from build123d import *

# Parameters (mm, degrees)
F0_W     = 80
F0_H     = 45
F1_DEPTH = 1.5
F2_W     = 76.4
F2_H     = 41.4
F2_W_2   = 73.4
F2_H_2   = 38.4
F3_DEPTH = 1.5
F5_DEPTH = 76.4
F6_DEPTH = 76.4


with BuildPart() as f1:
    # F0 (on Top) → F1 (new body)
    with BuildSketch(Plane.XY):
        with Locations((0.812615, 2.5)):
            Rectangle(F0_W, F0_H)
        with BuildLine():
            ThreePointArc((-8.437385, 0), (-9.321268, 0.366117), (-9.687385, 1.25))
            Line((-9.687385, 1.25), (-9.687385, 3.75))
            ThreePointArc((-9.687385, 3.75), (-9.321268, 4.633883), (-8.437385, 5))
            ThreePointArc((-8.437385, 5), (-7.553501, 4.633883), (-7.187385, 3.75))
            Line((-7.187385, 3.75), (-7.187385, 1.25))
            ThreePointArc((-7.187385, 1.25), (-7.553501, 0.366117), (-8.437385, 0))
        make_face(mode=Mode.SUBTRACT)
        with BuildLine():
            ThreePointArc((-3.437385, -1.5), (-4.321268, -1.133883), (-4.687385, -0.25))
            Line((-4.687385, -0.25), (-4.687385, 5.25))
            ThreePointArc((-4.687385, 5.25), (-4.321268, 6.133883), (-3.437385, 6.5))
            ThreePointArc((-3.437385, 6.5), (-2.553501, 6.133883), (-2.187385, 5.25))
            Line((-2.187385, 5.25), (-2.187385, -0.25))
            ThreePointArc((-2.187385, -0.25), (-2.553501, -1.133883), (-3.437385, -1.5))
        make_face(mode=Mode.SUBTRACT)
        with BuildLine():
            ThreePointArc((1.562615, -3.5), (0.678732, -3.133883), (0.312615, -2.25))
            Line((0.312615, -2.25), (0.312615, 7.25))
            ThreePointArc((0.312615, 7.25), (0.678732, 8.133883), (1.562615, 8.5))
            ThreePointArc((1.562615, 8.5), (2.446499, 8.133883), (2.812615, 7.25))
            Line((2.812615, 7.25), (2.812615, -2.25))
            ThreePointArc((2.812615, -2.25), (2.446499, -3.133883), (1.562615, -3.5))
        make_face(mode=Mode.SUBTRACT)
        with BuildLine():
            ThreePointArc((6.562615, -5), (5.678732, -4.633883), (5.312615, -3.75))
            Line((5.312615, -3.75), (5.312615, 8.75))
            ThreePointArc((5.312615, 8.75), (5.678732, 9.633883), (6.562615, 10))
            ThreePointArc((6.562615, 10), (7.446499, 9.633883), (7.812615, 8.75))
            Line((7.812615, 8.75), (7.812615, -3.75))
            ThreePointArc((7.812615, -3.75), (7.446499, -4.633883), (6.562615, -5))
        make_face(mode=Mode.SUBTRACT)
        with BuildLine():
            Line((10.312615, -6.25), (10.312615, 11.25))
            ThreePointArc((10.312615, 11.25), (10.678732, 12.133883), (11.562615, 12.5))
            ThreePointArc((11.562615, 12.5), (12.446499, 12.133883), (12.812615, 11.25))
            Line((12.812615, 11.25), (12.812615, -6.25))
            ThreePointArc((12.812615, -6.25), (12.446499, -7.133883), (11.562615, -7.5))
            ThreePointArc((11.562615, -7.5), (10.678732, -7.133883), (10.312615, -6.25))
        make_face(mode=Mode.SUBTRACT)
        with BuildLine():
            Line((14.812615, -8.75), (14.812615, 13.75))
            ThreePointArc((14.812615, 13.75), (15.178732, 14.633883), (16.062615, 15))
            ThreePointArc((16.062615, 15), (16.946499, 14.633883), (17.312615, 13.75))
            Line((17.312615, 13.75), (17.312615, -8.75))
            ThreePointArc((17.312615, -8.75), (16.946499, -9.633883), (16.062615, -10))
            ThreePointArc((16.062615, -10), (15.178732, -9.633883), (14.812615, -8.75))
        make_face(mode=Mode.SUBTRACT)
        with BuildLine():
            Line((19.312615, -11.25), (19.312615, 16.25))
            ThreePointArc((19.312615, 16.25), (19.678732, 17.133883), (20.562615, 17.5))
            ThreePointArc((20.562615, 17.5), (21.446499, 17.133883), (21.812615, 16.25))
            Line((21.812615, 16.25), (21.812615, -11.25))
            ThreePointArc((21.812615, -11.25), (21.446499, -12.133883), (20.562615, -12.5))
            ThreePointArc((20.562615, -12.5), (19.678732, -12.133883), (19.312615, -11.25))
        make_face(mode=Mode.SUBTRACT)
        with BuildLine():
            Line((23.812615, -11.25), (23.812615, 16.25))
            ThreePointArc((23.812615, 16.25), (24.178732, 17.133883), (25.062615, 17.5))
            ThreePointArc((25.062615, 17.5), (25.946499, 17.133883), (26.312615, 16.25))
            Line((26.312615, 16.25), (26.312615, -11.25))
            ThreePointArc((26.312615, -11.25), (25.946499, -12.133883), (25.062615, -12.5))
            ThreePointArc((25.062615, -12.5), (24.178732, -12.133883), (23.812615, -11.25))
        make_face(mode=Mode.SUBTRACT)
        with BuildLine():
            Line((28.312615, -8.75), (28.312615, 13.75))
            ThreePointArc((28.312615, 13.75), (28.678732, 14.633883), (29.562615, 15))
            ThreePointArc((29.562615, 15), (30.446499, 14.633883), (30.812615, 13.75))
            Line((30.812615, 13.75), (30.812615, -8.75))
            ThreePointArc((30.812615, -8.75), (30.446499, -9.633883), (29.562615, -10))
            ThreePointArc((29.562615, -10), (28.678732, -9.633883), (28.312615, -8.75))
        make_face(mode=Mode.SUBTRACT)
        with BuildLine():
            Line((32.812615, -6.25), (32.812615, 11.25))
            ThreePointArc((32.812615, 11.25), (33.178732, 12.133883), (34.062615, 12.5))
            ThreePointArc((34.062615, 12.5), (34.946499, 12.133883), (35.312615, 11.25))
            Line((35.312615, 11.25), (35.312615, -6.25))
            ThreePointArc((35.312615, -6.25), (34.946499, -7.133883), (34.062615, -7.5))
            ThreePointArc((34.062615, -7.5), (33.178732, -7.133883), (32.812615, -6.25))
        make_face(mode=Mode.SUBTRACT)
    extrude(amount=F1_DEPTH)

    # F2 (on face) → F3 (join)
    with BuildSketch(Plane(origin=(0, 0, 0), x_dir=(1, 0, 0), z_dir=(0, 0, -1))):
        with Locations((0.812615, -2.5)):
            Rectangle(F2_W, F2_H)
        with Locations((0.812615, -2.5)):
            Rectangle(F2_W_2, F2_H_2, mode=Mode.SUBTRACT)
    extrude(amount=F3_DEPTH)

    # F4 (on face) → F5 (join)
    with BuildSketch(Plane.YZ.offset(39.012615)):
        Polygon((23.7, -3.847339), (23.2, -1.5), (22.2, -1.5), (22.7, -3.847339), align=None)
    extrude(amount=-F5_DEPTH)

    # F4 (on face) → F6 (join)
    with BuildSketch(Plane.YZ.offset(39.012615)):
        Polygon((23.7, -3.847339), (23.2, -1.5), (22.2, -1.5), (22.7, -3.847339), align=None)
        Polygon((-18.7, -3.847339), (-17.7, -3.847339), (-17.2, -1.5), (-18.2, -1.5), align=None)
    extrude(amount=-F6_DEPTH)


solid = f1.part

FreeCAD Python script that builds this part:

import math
import FreeCAD as App
import Part
import Sketcher
from FreeCAD import Vector
Q = App.Units.Quantity

doc = App.newDocument("Part")
params = doc.addObject("Spreadsheet::Sheet", "Params")
for row, (alias, value) in enumerate([
    ("sketch1_width", "80 mm"),
    ("sketch1_height", "45 mm"),
    ("sketch1_radius", "1.250002 mm"),
    ("sketch1_height2", "17.5 mm"),
    ("sketch1_height3", "2.5 mm"),
    ("pad1_length", "1.5 mm"),
    ("sketch2_width", "76.4 mm"),
    ("sketch2_width2", "73.4 mm"),
    ("sketch2_height", "41.4 mm"),
    ("sketch2_height2", "38.4 mm"),
    ("pad2_length", "1.5 mm"),
    ("sketch3_width", "1 mm"),
    ("sketch3_length", "2.4 mm"),
    ("pad3_length", "76.4 mm"),
    ("sketch4_width", "1 mm"),
    ("sketch4_length", "2.4 mm"),
    ("pad4_length", "76.4 mm"),
], start=1):
    params.set(f"A{row}", alias)
    params.set(f"B{row}", "=" + value)
    params.setAlias(f"B{row}", alias)

body = doc.addObject("PartDesign::Body", "Body")

sketch1 = doc.addObject("Sketcher::SketchObject", "Sketch")
body.addObject(sketch1)
sketch1.AttachmentSupport = (doc.XY_Plane, [""])
sketch1.MapMode = "FlatFace"
sketch1.addGeometry([
    Part.LineSegment(Vector(-39.2, 25, 0), Vector(-39.2, -20, 0)),
    Part.LineSegment(Vector(-39.2, -20, 0), Vector(40.8, -20, 0)),
    Part.LineSegment(Vector(40.8, -20, 0), Vector(40.8, 25, 0)),
    Part.LineSegment(Vector(40.8, 25, 0), Vector(-39.2, 25, 0)),
    Part.ArcOfCircle(Part.Circle(Vector(34.1, -6.2, 0), Vector(0, 0, 1), 1.3), math.radians(-180), math.radians(-90)),
    Part.LineSegment(Vector(32.8, -6.2, 0), Vector(32.8, 11.2, 0)),
    Part.ArcOfCircle(Part.Circle(Vector(34.1, 11.2, 0), Vector(0, 0, 1), 1.3), math.radians(90), math.radians(180)),
    Part.ArcOfCircle(Part.Circle(Vector(34.1, 11.3, 0), Vector(0, 0, 1), 1.2), math.radians(0), math.radians(90)),
    Part.LineSegment(Vector(35.3, 11.2, 0), Vector(35.3, -6.2, 0)),
    Part.ArcOfCircle(Part.Circle(Vector(34.1, -6.3, 0), Vector(0, 0, 1), 1.2), math.radians(-90), math.radians(0)),
    Part.ArcOfCircle(Part.Circle(Vector(-8.4, 1.2, 0), Vector(0, 0, 1), 1.2), math.radians(-90), math.radians(0)),
    Part.ArcOfCircle(Part.Circle(Vector(-8.4, 1.3, 0), Vector(0, 0, 1), 1.3), math.radians(-180), math.radians(-90)),
    Part.LineSegment(Vector(-9.7, 1.2, 0), Vector(-9.7, 3.8, 0)),
    Part.ArcOfCircle(Part.Circle(Vector(-8.4, 3.7, 0), Vector(0, 0, 1), 1.3), math.radians(90), math.radians(180)),
    Part.ArcOfCircle(Part.Circle(Vector(-8.4, 3.8, 0), Vector(0, 0, 1), 1.2), math.radians(0), math.radians(90)),
    Part.LineSegment(Vector(-7.2, 3.8, 0), Vector(-7.2, 1.2, 0)),
    Part.ArcOfCircle(Part.Circle(Vector(-3.4, -0.3, 0), Vector(0, 0, 1), 1.2), math.radians(-90), math.radians(0)),
    Part.ArcOfCircle(Part.Circle(Vector(-3.4, -0.2, 0), Vector(0, 0, 1), 1.3), math.radians(-180), math.radians(-90)),
    Part.LineSegment(Vector(-4.7, -0.2, 0), Vector(-4.7, 5.2, 0)),
    Part.ArcOfCircle(Part.Circle(Vector(-3.4, 5.2, 0), Vector(0, 0, 1), 1.3), math.radians(90), math.radians(180)),
    Part.ArcOfCircle(Part.Circle(Vector(-3.4, 5.3, 0), Vector(0, 0, 1), 1.2), math.radians(0), math.radians(90)),
    Part.LineSegment(Vector(-2.2, 5.2, 0), Vector(-2.2, -0.2, 0)),
    Part.ArcOfCircle(Part.Circle(Vector(1.6, -2.3, 0), Vector(0, 0, 1), 1.2), math.radians(-90), math.radians(0)),
    Part.ArcOfCircle(Part.Circle(Vector(1.6, -2.2, 0), Vector(0, 0, 1), 1.3), math.radians(-180), math.radians(-90)),
    Part.LineSegment(Vector(0.3, -2.2, 0), Vector(0.3, 7.2, 0)),
    Part.ArcOfCircle(Part.Circle(Vector(1.6, 7.2, 0), Vector(0, 0, 1), 1.3), math.radians(90), math.radians(180)),
    Part.ArcOfCircle(Part.Circle(Vector(1.6, 7.3, 0), Vector(0, 0, 1), 1.2), math.radians(0), math.radians(90)),
    Part.LineSegment(Vector(2.8, 7.2, 0), Vector(2.8, -2.2, 0)),
    Part.ArcOfCircle(Part.Circle(Vector(6.6, -3.8, 0), Vector(0, 0, 1), 1.2), math.radians(-90), math.radians(0)),
    Part.ArcOfCircle(Part.Circle(Vector(6.6, -3.7, 0), Vector(0, 0, 1), 1.3), math.radians(-180), math.radians(-90)),
    Part.LineSegment(Vector(5.3, -3.8, 0), Vector(5.3, 8.8, 0)),
    Part.ArcOfCircle(Part.Circle(Vector(6.6, 8.7, 0), Vector(0, 0, 1), 1.3), math.radians(90), math.radians(180)),
    Part.ArcOfCircle(Part.Circle(Vector(6.6, 8.8, 0), Vector(0, 0, 1), 1.2), math.radians(0), math.radians(90)),
    Part.LineSegment(Vector(7.8, 8.8, 0), Vector(7.8, -3.8, 0)),
    Part.ArcOfCircle(Part.Circle(Vector(11.6, -6.2, 0), Vector(0, 0, 1), 1.3), math.radians(-180), math.radians(-90)),
    Part.LineSegment(Vector(10.3, -6.2, 0), Vector(10.3, 11.2, 0)),
    Part.ArcOfCircle(Part.Circle(Vector(11.6, 11.2, 0), Vector(0, 0, 1), 1.3), math.radians(90), math.radians(180)),
    Part.ArcOfCircle(Part.Circle(Vector(11.6, 11.3, 0), Vector(0, 0, 1), 1.2), math.radians(0), math.radians(90)),
    Part.LineSegment(Vector(12.8, 11.2, 0), Vector(12.8, -6.2, 0)),
    Part.ArcOfCircle(Part.Circle(Vector(11.6, -6.3, 0), Vector(0, 0, 1), 1.2), math.radians(-90), math.radians(0)),
    Part.ArcOfCircle(Part.Circle(Vector(16.1, -8.7, 0), Vector(0, 0, 1), 1.3), math.radians(-180), math.radians(-90)),
    Part.LineSegment(Vector(14.8, -8.8, 0), Vector(14.8, 13.8, 0)),
    Part.ArcOfCircle(Part.Circle(Vector(16.1, 13.7, 0), Vector(0, 0, 1), 1.3), math.radians(90), math.radians(180)),
    Part.ArcOfCircle(Part.Circle(Vector(16.1, 13.8, 0), Vector(0, 0, 1), 1.2), math.radians(0), math.radians(90)),
    Part.LineSegment(Vector(17.3, 13.8, 0), Vector(17.3, -8.8, 0)),
    Part.ArcOfCircle(Part.Circle(Vector(16.1, -8.8, 0), Vector(0, 0, 1), 1.2), math.radians(-90), math.radians(0)),
    Part.ArcOfCircle(Part.Circle(Vector(20.6, -11.2, 0), Vector(0, 0, 1), 1.3), math.radians(-180), math.radians(-90)),
    Part.LineSegment(Vector(19.3, -11.2, 0), Vector(19.3, 16.2, 0)),
    Part.ArcOfCircle(Part.Circle(Vector(20.6, 16.2, 0), Vector(0, 0, 1), 1.3), math.radians(90), math.radians(180)),
    Part.ArcOfCircle(Part.Circle(Vector(20.6, 16.3, 0), Vector(0, 0, 1), 1.2), math.radians(0), math.radians(90)),
    Part.LineSegment(Vector(21.8, 16.2, 0), Vector(21.8, -11.2, 0)),
    Part.ArcOfCircle(Part.Circle(Vector(20.6, -11.3, 0), Vector(0, 0, 1), 1.2), math.radians(-90), math.radians(0)),
    Part.ArcOfCircle(Part.Circle(Vector(25.1, -11.2, 0), Vector(0, 0, 1), 1.3), math.radians(-180), math.radians(-90)),
    Part.LineSegment(Vector(23.8, -11.2, 0), Vector(23.8, 16.2, 0)),
    Part.ArcOfCircle(Part.Circle(Vector(25.1, 16.2, 0), Vector(0, 0, 1), 1.3), math.radians(90), math.radians(180)),
    Part.ArcOfCircle(Part.Circle(Vector(25.1, 16.3, 0), Vector(0, 0, 1), 1.2), math.radians(0), math.radians(90)),
    Part.LineSegment(Vector(26.3, 16.2, 0), Vector(26.3, -11.2, 0)),
    Part.ArcOfCircle(Part.Circle(Vector(25.1, -11.3, 0), Vector(0, 0, 1), 1.2), math.radians(-90), math.radians(0)),
    Part.ArcOfCircle(Part.Circle(Vector(29.6, -8.7, 0), Vector(0, 0, 1), 1.3), math.radians(-180), math.radians(-90)),
    Part.LineSegment(Vector(28.3, -8.8, 0), Vector(28.3, 13.8, 0)),
    Part.ArcOfCircle(Part.Circle(Vector(29.6, 13.7, 0), Vector(0, 0, 1), 1.3), math.radians(90), math.radians(180)),
    Part.ArcOfCircle(Part.Circle(Vector(29.6, 13.8, 0), Vector(0, 0, 1), 1.2), math.radians(0), math.radians(90)),
    Part.LineSegment(Vector(30.8, 13.8, 0), Vector(30.8, -8.8, 0)),
    Part.ArcOfCircle(Part.Circle(Vector(29.6, -8.8, 0), Vector(0, 0, 1), 1.2), math.radians(-90), math.radians(0)),
], False)
sketch1.addConstraint([
    Sketcher.Constraint("Coincident", 0, 2, 1, 1),
    Sketcher.Constraint("Coincident", 1, 2, 2, 1),
    Sketcher.Constraint("Coincident", 2, 2, 3, 1),
    Sketcher.Constraint("Coincident", 3, 2, 0, 1),
    Sketcher.Constraint("Tangent", 4, 1, 5, 1),
    Sketcher.Constraint("Tangent", 5, 2, 6, 2),
    Sketcher.Constraint("Tangent", 6, 1, 7, 2),
    Sketcher.Constraint("Tangent", 7, 1, 8, 1),
    Sketcher.Constraint("Tangent", 8, 2, 9, 2),
    Sketcher.Constraint("Tangent", 9, 1, 4, 2),
    Sketcher.Constraint("Tangent", 10, 1, 11, 2),
    Sketcher.Constraint("Tangent", 11, 1, 12, 1),
    Sketcher.Constraint("Tangent", 12, 2, 13, 2),
    Sketcher.Constraint("Tangent", 13, 1, 14, 2),
    Sketcher.Constraint("Tangent", 14, 1, 15, 1),
    Sketcher.Constraint("Tangent", 15, 2, 10, 2),
    Sketcher.Constraint("Tangent", 16, 1, 17, 2),
    Sketcher.Constraint("Tangent", 17, 1, 18, 1),
    Sketcher.Constraint("Tangent", 18, 2, 19, 2),
    Sketcher.Constraint("Tangent", 19, 1, 20, 2),
    Sketcher.Constraint("Tangent", 20, 1, 21, 1),
    Sketcher.Constraint("Tangent", 21, 2, 16, 2),
    Sketcher.Constraint("Tangent", 22, 1, 23, 2),
    Sketcher.Constraint("Tangent", 23, 1, 24, 1),
    Sketcher.Constraint("Tangent", 24, 2, 25, 2),
    Sketcher.Constraint("Tangent", 25, 1, 26, 2),
    Sketcher.Constraint("Tangent", 26, 1, 27, 1),
    Sketcher.Constraint("Tangent", 27, 2, 22, 2),
    Sketcher.Constraint("Tangent", 28, 1, 29, 2),
    Sketcher.Constraint("Tangent", 29, 1, 30, 1),
    Sketcher.Constraint("Tangent", 30, 2, 31, 2),
    Sketcher.Constraint("Tangent", 31, 1, 32, 2),
    Sketcher.Constraint("Tangent", 32, 1, 33, 1),
    Sketcher.Constraint("Tangent", 33, 2, 28, 2),
    Sketcher.Constraint("Tangent", 34, 1, 35, 1),
    Sketcher.Constraint("Tangent", 35, 2, 36, 2),
    Sketcher.Constraint("Tangent", 36, 1, 37, 2),
    Sketcher.Constraint("Tangent", 37, 1, 38, 1),
    Sketcher.Constraint("Tangent", 38, 2, 39, 2),
    Sketcher.Constraint("Tangent", 39, 1, 34, 2),
    Sketcher.Constraint("Tangent", 40, 1, 41, 1),
    Sketcher.Constraint("Tangent", 41, 2, 42, 2),
    Sketcher.Constraint("Tangent", 42, 1, 43, 2),
    Sketcher.Constraint("Tangent", 43, 1, 44, 1),
    Sketcher.Constraint("Tangent", 44, 2, 45, 2),
    Sketcher.Constraint("Tangent", 45, 1, 40, 2),
    Sketcher.Constraint("Tangent", 46, 1, 47, 1),
    Sketcher.Constraint("Tangent", 47, 2, 48, 2),
    Sketcher.Constraint("Tangent", 48, 1, 49, 2),
    Sketcher.Constraint("Tangent", 49, 1, 50, 1),
    Sketcher.Constraint("Tangent", 50, 2, 51, 2),
    Sketcher.Constraint("Tangent", 51, 1, 46, 2),
    Sketcher.Constraint("Tangent", 52, 1, 53, 1),
    Sketcher.Constraint("Tangent", 53, 2, 54, 2),
    Sketcher.Constraint("Tangent", 54, 1, 55, 2),
    Sketcher.Constraint("Tangent", 55, 1, 56, 1),
    Sketcher.Constraint("Tangent", 56, 2, 57, 2),
    Sketcher.Constraint("Tangent", 57, 1, 52, 2),
    Sketcher.Constraint("Tangent", 58, 1, 59, 1),
    Sketcher.Constraint("Tangent", 59, 2, 60, 2),
    Sketcher.Constraint("Tangent", 60, 1, 61, 2),
    Sketcher.Constraint("Tangent", 61, 1, 62, 1),
    Sketcher.Constraint("Tangent", 62, 2, 63, 2),
    Sketcher.Constraint("Tangent", 63, 1, 58, 2),
    Sketcher.Constraint("Vertical", 0),
    Sketcher.Constraint("Horizontal", 1),
    Sketcher.Constraint("Vertical", 2),
    Sketcher.Constraint("Horizontal", 3),
    Sketcher.Constraint("Vertical", 5),
    Sketcher.Constraint("Vertical", 8),
    Sketcher.Constraint("Vertical", 12),
    Sketcher.Constraint("Vertical", 15),
    Sketcher.Constraint("Vertical", 18),
    Sketcher.Constraint("Vertical", 21),
    Sketcher.Constraint("Vertical", 24),
    Sketcher.Constraint("Vertical", 27),
    Sketcher.Constraint("Vertical", 30),
    Sketcher.Constraint("Vertical", 33),
    Sketcher.Constraint("Vertical", 35),
    Sketcher.Constraint("Vertical", 38),
    Sketcher.Constraint("Vertical", 41),
    Sketcher.Constraint("Vertical", 44),
    Sketcher.Constraint("Vertical", 47),
    Sketcher.Constraint("Vertical", 50),
    Sketcher.Constraint("Vertical", 53),
    Sketcher.Constraint("Vertical", 56),
    Sketcher.Constraint("Vertical", 59),
    Sketcher.Constraint("Vertical", 62),
    Sketcher.Constraint("Equal", 4, 6),
    Sketcher.Constraint("Equal", 6, 7),
    Sketcher.Constraint("Equal", 9, 10),
    Sketcher.Constraint("Equal", 10, 11),
    Sketcher.Constraint("Equal", 11, 13),
    Sketcher.Constraint("Equal", 14, 16),
    Sketcher.Constraint("Equal", 16, 17),
    Sketcher.Constraint("Equal", 17, 19),
    Sketcher.Constraint("Equal", 20, 22),
    Sketcher.Constraint("Equal", 22, 23),
    Sketcher.Constraint("Equal", 23, 25),
    Sketcher.Constraint("Equal", 26, 28),
    Sketcher.Constraint("Equal", 28, 29),
    Sketcher.Constraint("Equal", 29, 31),
    Sketcher.Constraint("Equal", 32, 34),
    Sketcher.Constraint("Equal", 34, 36),
    Sketcher.Constraint("Equal", 36, 37),
    Sketcher.Constraint("Equal", 39, 40),
    Sketcher.Constraint("Equal", 40, 42),
    Sketcher.Constraint("Equal", 42, 43),
    Sketcher.Constraint("Equal", 45, 46),
    Sketcher.Constraint("Equal", 46, 48),
    Sketcher.Constraint("Equal", 48, 49),
    Sketcher.Constraint("Equal", 51, 52),
    Sketcher.Constraint("Equal", 52, 54),
    Sketcher.Constraint("Equal", 54, 55),
    Sketcher.Constraint("Equal", 57, 58),
    Sketcher.Constraint("Equal", 58, 60),
    Sketcher.Constraint("Equal", 60, 61),
    Sketcher.Constraint("PointOnObject", 10, 1, -1),
    Sketcher.Constraint("Horizontal", 9, 3, 34, 3),
    Sketcher.Constraint("Horizontal", 7, 3, 36, 3),
    Sketcher.Constraint("Horizontal", 51, 3, 52, 3),
    Sketcher.Constraint("Horizontal", 49, 3, 54, 3),
    Sketcher.Constraint("Horizontal", 45, 3, 58, 3),
    Sketcher.Constraint("Horizontal", 43, 3, 60, 3),
    Sketcher.Constraint("Vertical", 9, 3, 6, 1),
    Sketcher.Constraint("Vertical", 6, 1, 9, 1),
    Sketcher.Constraint("Vertical", 14, 3, 10, 1),
    Sketcher.Constraint("Vertical", 10, 1, 13, 1),
    Sketcher.Constraint("Vertical", 20, 3, 16, 1),
    Sketcher.Constraint("Vertical", 16, 1, 19, 1),
    Sketcher.Constraint("Vertical", 26, 3, 22, 1),
    Sketcher.Constraint("Vertical", 22, 1, 25, 1),
    Sketcher.Constraint("Vertical", 32, 3, 28, 1),
    Sketcher.Constraint("Vertical", 28, 1, 31, 1),
    Sketcher.Constraint("Vertical", 39, 3, 36, 1),
    Sketcher.Constraint("Vertical", 36, 1, 39, 1),
    Sketcher.Constraint("Vertical", 45, 3, 42, 1),
    Sketcher.Constraint("Vertical", 42, 1, 45, 1),
    Sketcher.Constraint("Vertical", 51, 3, 48, 1),
    Sketcher.Constraint("Vertical", 48, 1, 51, 1),
    Sketcher.Constraint("Vertical", 57, 3, 54, 1),
    Sketcher.Constraint("Vertical", 54, 1, 57, 1),
    Sketcher.Constraint("Vertical", 63, 3, 60, 1),
    Sketcher.Constraint("Vertical", 60, 1, 63, 1),
    Sketcher.Constraint("DistanceX", 1, 1, 1, 2, Q("80 mm")),
    Sketcher.Constraint("DistanceY", 0, 2, 0, 1, Q("45 mm")),
    Sketcher.Constraint("Radius", 4, Q("1.250002 mm")),
    Sketcher.Constraint("DistanceY", 5, 1, 5, 2, Q("17.5 mm")),
    Sketcher.Constraint("DistanceY", 12, 1, 12, 2, Q("2.5 mm")),
    Sketcher.Constraint("DistanceY", 18, 1, 18, 2, Q("5.5 mm")),
    Sketcher.Constraint("DistanceY", 24, 1, 24, 2, Q("9.5 mm")),
    Sketcher.Constraint("DistanceY", 30, 1, 30, 2, Q("12.5 mm")),
    Sketcher.Constraint("DistanceY", 41, 1, 41, 2, Q("22.5 mm")),
    Sketcher.Constraint("DistanceY", 47, 1, 47, 2, Q("27.5 mm")),
    Sketcher.Constraint("DistanceY", 0, 2, -1, 1, Q("20 mm")),
    Sketcher.Constraint("DistanceY", 28, 1, -1, 1, Q("5 mm")),
    Sketcher.Constraint("DistanceY", -1, 1, 42, 1, Q("15 mm")),
    Sketcher.Constraint("DistanceY", -1, 1, 6, 1, Q("12.5 mm")),
    Sketcher.Constraint("DistanceY", 16, 1, -1, 1, Q("1.5 mm")),
    Sketcher.Constraint("DistanceY", 22, 1, -1, 1, Q("3.5 mm")),
    Sketcher.Constraint("DistanceY", -1, 1, 48, 1, Q("17.5 mm")),
    Sketcher.Constraint("DistanceX", -1, 1, 4, 3, Q("34.062617 mm")),
    Sketcher.Constraint("DistanceX", 10, 3, -1, 1, Q("8.437385 mm")),
    Sketcher.Constraint("DistanceX", 16, 3, -1, 1, Q("3.437385 mm")),
    Sketcher.Constraint("DistanceX", -1, 1, 22, 3, Q("1.562615 mm")),
    Sketcher.Constraint("DistanceX", -1, 1, 28, 3, Q("6.562615 mm")),
    Sketcher.Constraint("DistanceX", -1, 1, 34, 3, Q("11.562617 mm")),
    Sketcher.Constraint("DistanceX", -1, 1, 40, 3, Q("16.062617 mm")),
    Sketcher.Constraint("DistanceX", -1, 1, 46, 3, Q("20.562617 mm")),
    Sketcher.Constraint("DistanceX", -1, 1, 52, 3, Q("25.062617 mm")),
    Sketcher.Constraint("DistanceX", -1, 1, 58, 3, Q("29.562617 mm")),
    Sketcher.Constraint("DistanceX", 0, 2, -1, 1, Q("39.187385 mm")),
])
sketch1.setExpression("Constraints[144]", "Params.sketch1_width")
sketch1.setExpression("Constraints[145]", "Params.sketch1_height")
sketch1.setExpression("Constraints[146]", "Params.sketch1_radius")
sketch1.setExpression("Constraints[147]", "Params.sketch1_height2")
sketch1.setExpression("Constraints[148]", "Params.sketch1_height3")
pad1 = doc.addObject("PartDesign::Pad", "Pad")
body.addObject(pad1)
pad1.Profile = sketch1
pad1.setExpression("Length", "Params.pad1_length")

sketch2 = doc.addObject("Sketcher::SketchObject", "Sketch001")
body.addObject(sketch2)
sketch2.AttachmentSupport = (doc.XY_Plane, [""])
sketch2.MapMode = "FlatFace"
sketch2.addGeometry([
    Part.LineSegment(Vector(-37, -18, 0), Vector(-37, 23, 0)),
    Part.LineSegment(Vector(-37, 23, 0), Vector(39, 23, 0)),
    Part.LineSegment(Vector(39, 23, 0), Vector(39, -18, 0)),
    Part.LineSegment(Vector(39, -18, 0), Vector(-37, -18, 0)),
    Part.LineSegment(Vector(38, 22, 0), Vector(-36, 22, 0)),
    Part.LineSegment(Vector(-36, 22, 0), Vector(-36, -17, 0)),
    Part.LineSegment(Vector(-36, -17, 0), Vector(38, -17, 0)),
    Part.LineSegment(Vector(38, -17, 0), Vector(38, 22, 0)),
], False)
sketch2.addConstraint([
    Sketcher.Constraint("Coincident", 0, 2, 1, 1),
    Sketcher.Constraint("Coincident", 1, 2, 2, 1),
    Sketcher.Constraint("Coincident", 2, 2, 3, 1),
    Sketcher.Constraint("Coincident", 3, 2, 0, 1),
    Sketcher.Constraint("Coincident", 4, 2, 5, 1),
    Sketcher.Constraint("Coincident", 5, 2, 6, 1),
    Sketcher.Constraint("Coincident", 6, 2, 7, 1),
    Sketcher.Constraint("Coincident", 7, 2, 4, 1),
    Sketcher.Constraint("Vertical", 0),
    Sketcher.Constraint("Horizontal", 1),
    Sketcher.Constraint("Vertical", 2),
    Sketcher.Constraint("Horizontal", 3),
    Sketcher.Constraint("Horizontal", 4),
    Sketcher.Constraint("Vertical", 5),
    Sketcher.Constraint("Horizontal", 6),
    Sketcher.Constraint("Vertical", 7),
    Sketcher.Constraint("DistanceX", 1, 1, 1, 2, Q("76.4 mm")),
    Sketcher.Constraint("DistanceX", 4, 2, 4, 1, Q("73.4 mm")),
    Sketcher.Constraint("DistanceY", 0, 1, 0, 2, Q("41.4 mm")),
    Sketcher.Constraint("DistanceY", 5, 2, 5, 1, Q("38.4 mm")),
    Sketcher.Constraint("DistanceY", -1, 1, 0, 2, Q("23.2 mm")),
    Sketcher.Constraint("DistanceY", -1, 1, 4, 2, Q("21.7 mm")),
    Sketcher.Constraint("DistanceX", 0, 2, 4, 2, Q("1.5 mm")),
    Sketcher.Constraint("DistanceX", 0, 2, -1, 1, Q("37.387385 mm")),
])
sketch2.setExpression("Constraints[16]", "Params.sketch2_width")
sketch2.setExpression("Constraints[17]", "Params.sketch2_width2")
sketch2.setExpression("Constraints[18]", "Params.sketch2_height")
sketch2.setExpression("Constraints[19]", "Params.sketch2_height2")
pad2 = doc.addObject("PartDesign::Pad", "Pad001")
body.addObject(pad2)
pad2.Profile = sketch2
pad2.setExpression("Length", "Params.pad2_length")
pad2.Reversed = True

sketch3 = doc.addObject("Sketcher::SketchObject", "Sketch002")
body.addObject(sketch3)
sketch3.AttachmentSupport = (doc.YZ_Plane, [""])
sketch3.MapMode = "FlatFace"
sketch3.AttachmentOffset = App.Placement(Vector(0, 0, 39.012615), App.Rotation())
sketch3.addGeometry([
    Part.LineSegment(Vector(23.7, -3.8, 0), Vector(23.2, -1.5, 0)),
    Part.LineSegment(Vector(23.2, -1.5, 0), Vector(22.2, -1.5, 0)),
    Part.LineSegment(Vector(22.2, -1.5, 0), Vector(22.7, -3.8, 0)),
    Part.LineSegment(Vector(22.7, -3.8, 0), Vector(23.7, -3.8, 0)),
], False)
sketch3.addConstraint([
    Sketcher.Constraint("Coincident", 0, 2, 1, 1),
    Sketcher.Constraint("Coincident", 1, 2, 2, 1),
    Sketcher.Constraint("Coincident", 2, 2, 3, 1),
    Sketcher.Constraint("Coincident", 3, 2, 0, 1),
    Sketcher.Constraint("Horizontal", 1),
    Sketcher.Constraint("Horizontal", 3),
    Sketcher.Constraint("Parallel", 0, 2),
    Sketcher.Constraint("DistanceX", 1, 2, 1, 1, Q("1 mm")),
    Sketcher.Constraint("Distance", 0, Q("2.4 mm")),
    Sketcher.Constraint("DistanceX", -1, 1, 0, 2, Q("23.2 mm")),
    Sketcher.Constraint("DistanceY", 0, 2, -1, 1, Q("1.5 mm")),
    Sketcher.Constraint("DistanceX", -1, 1, 2, 2, Q("22.7 mm")),
])
sketch3.setExpression("Constraints[7]", "Params.sketch3_width")
sketch3.setExpression("Constraints[8]", "Params.sketch3_length")
pad3 = doc.addObject("PartDesign::Pad", "Pad002")
body.addObject(pad3)
pad3.Profile = sketch3
pad3.setExpression("Length", "Params.pad3_length")
pad3.Reversed = True

sketch4 = doc.addObject("Sketcher::SketchObject", "Sketch003")
body.addObject(sketch4)
sketch4.AttachmentSupport = (doc.YZ_Plane, [""])
sketch4.MapMode = "FlatFace"
sketch4.AttachmentOffset = App.Placement(Vector(0, 0, 39.012615), App.Rotation())
sketch4.addGeometry([
    Part.LineSegment(Vector(23.7, -3.8, 0), Vector(23.2, -1.5, 0)),
    Part.LineSegment(Vector(23.2, -1.5, 0), Vector(22.2, -1.5, 0)),
    Part.LineSegment(Vector(22.2, -1.5, 0), Vector(22.7, -3.8, 0)),
    Part.LineSegment(Vector(22.7, -3.8, 0), Vector(23.7, -3.8, 0)),
    Part.LineSegment(Vector(-18.7, -3.8, 0), Vector(-17.7, -3.8, 0)),
    Part.LineSegment(Vector(-17.7, -3.8, 0), Vector(-17.2, -1.5, 0)),
    Part.LineSegment(Vector(-17.2, -1.5, 0), Vector(-18.2, -1.5, 0)),
    Part.LineSegment(Vector(-18.2, -1.5, 0), Vector(-18.7, -3.8, 0)),
], False)
sketch4.addConstraint([
    Sketcher.Constraint("Coincident", 0, 2, 1, 1),
    Sketcher.Constraint("Coincident", 1, 2, 2, 1),
    Sketcher.Constraint("Coincident", 2, 2, 3, 1),
    Sketcher.Constraint("Coincident", 3, 2, 0, 1),
    Sketcher.Constraint("Coincident", 4, 2, 5, 1),
    Sketcher.Constraint("Coincident", 5, 2, 6, 1),
    Sketcher.Constraint("Coincident", 6, 2, 7, 1),
    Sketcher.Constraint("Coincident", 7, 2, 4, 1),
    Sketcher.Constraint("Horizontal", 1),
    Sketcher.Constraint("Horizontal", 3),
    Sketcher.Constraint("Horizontal", 4),
    Sketcher.Constraint("Horizontal", 6),
    Sketcher.Constraint("Parallel", 0, 2),
    Sketcher.Constraint("Parallel", 5, 7),
    Sketcher.Constraint("Horizontal", 3, 2, 4, 2),
    Sketcher.Constraint("Horizontal", 1, 2, 5, 2),
    Sketcher.Constraint("Equal", 3, 4),
    Sketcher.Constraint("Equal", 2, 5),
    Sketcher.Constraint("DistanceX", 1, 2, 1, 1, Q("1 mm")),
    Sketcher.Constraint("Distance", 0, Q("2.4 mm")),
    Sketcher.Constraint("DistanceX", -1, 1, 0, 2, Q("23.2 mm")),
    Sketcher.Constraint("DistanceY", 0, 2, -1, 1, Q("1.5 mm")),
    Sketcher.Constraint("DistanceX", -1, 1, 2, 2, Q("22.7 mm")),
    Sketcher.Constraint("DistanceX", 4, 2, -1, 1, Q("17.7 mm")),
])
sketch4.setExpression("Constraints[18]", "Params.sketch4_width")
sketch4.setExpression("Constraints[19]", "Params.sketch4_length")
pad4 = doc.addObject("PartDesign::Pad", "Pad003")
body.addObject(pad4)
pad4.Profile = sketch4
pad4.setExpression("Length", "Params.pad4_length")
pad4.Reversed = True

doc.recompute()
